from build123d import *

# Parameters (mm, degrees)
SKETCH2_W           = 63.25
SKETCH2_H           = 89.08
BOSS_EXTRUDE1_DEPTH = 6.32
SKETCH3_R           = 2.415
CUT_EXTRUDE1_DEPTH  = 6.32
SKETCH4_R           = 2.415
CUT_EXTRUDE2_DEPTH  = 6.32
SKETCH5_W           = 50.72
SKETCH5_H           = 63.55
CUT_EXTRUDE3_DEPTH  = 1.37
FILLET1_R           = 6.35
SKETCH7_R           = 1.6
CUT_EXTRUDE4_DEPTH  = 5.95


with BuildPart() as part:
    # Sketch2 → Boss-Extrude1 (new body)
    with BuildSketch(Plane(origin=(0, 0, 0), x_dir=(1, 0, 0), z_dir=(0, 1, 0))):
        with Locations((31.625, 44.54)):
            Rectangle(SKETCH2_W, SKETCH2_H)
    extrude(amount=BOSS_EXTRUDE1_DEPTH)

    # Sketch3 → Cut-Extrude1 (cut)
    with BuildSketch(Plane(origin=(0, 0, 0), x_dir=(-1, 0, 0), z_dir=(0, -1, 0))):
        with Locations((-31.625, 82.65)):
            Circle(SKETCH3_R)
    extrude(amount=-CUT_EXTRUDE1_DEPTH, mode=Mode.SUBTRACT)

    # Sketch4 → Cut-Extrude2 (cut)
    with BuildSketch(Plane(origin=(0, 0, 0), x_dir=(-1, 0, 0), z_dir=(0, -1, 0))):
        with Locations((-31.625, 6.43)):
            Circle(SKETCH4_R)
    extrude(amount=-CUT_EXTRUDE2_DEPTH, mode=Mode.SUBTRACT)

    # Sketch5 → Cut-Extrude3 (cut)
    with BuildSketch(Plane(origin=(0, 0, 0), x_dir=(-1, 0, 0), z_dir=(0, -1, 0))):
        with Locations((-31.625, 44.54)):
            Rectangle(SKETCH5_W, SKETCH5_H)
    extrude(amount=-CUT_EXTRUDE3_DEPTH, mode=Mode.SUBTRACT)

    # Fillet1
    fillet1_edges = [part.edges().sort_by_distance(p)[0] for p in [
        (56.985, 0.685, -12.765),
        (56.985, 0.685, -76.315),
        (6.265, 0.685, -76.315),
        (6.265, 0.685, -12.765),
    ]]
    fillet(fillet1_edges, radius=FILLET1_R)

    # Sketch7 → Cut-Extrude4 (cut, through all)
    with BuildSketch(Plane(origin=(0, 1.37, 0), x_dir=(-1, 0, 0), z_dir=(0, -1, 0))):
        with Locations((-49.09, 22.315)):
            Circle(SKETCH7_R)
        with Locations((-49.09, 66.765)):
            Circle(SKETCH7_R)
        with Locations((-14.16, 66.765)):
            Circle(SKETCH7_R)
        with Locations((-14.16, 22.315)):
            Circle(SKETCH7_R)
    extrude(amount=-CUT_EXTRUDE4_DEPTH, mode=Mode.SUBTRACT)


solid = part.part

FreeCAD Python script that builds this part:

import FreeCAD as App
import Part
import Sketcher
from FreeCAD import Vector
Q = App.Units.Quantity


def edges_at(feature, points):
    """Names of the edges that pass closest to the given points."""
    edges = feature.Shape.Edges
    near = lambda p: min(range(len(edges)), key=lambda i: edges[i].distToShape(Part.Vertex(*p))[0])
    return sorted({f"Edge{near(p) + 1}" for p in points})


def add_polygon(sketch, points):
    """Adds a closed chain of lines whose ends are joined by coincident constraints."""
    first, n = sketch.GeometryCount, len(points)
    for a, b in zip(points, points[1:] + points[:1]):
        sketch.addGeometry(Part.LineSegment(App.Vector(*a, 0), App.Vector(*b, 0)), False)
    for i in range(n):
        sketch.addConstraint(Sketcher.Constraint("Coincident", first + i, 2, first + (i + 1) % n, 1))

doc = App.newDocument("Part")
body = doc.addObject("PartDesign::Body", "Body")

sketch1 = body.newObject("Sketcher::SketchObject", "Sketch")
sketch1.AttachmentSupport = (doc.getObject("XZ_Plane"), [""])
sketch1.MapMode = "FlatFace"
add_polygon(sketch1, [(0, -89), (0, 0), (63, 0), (63, -89)])
sketch1.addConstraint(Sketcher.Constraint("Vertical", 0))
sketch1.addConstraint(Sketcher.Constraint("Horizontal", 1))
sketch1.addConstraint(Sketcher.Constraint("Vertical", 2))
sketch1.addConstraint(Sketcher.Constraint("Horizontal", 3))
sketch1.addConstraint(Sketcher.Constraint("Coincident", 0, 2, -1, 1))
sketch1.addConstraint(Sketcher.Constraint("DistanceX", 1, 1, 1, 2, Q("63.25 mm")))
sketch1.addConstraint(Sketcher.Constraint("DistanceY", 0, 1, 0, 2, Q("89.08 mm")))
pad1 = body.newObject("PartDesign::Pad", "Pad")
pad1.Profile = sketch1
pad1.Length = 6.32
pad1.Reversed = True

sketch2 = body.newObject("Sketcher::SketchObject", "Sketch001")
sketch2.AttachmentSupport = (doc.getObject("XZ_Plane"), [""])
sketch2.MapMode = "FlatFace"
sketch2.addGeometry(Part.Circle(Vector(31.6, -82.7, 0), Vector(0, 0, 1), 2.4), False)
sketch2.addConstraint(Sketcher.Constraint("Diameter", 0, Q("4.83 mm")))
sketch2.addConstraint(Sketcher.Constraint("DistanceY", 0, 3, -1, 1, Q("82.65 mm")))
sketch2.addConstraint(Sketcher.Constraint("DistanceX", -1, 1, 0, 3, Q("31.625 mm")))
pocket1 = body.newObject("PartDesign::Pocket", "Pocket")
pocket1.Profile = sketch2
pocket1.Length = 6.32

sketch3 = body.newObject("Sketcher::SketchObject", "Sketch002")
sketch3.AttachmentSupport = (doc.getObject("XZ_Plane"), [""])
sketch3.MapMode = "FlatFace"
sketch3.addGeometry(Part.Circle(Vector(31.6, -6.4, 0), Vector(0, 0, 1), 2.4), False)
sketch3.addConstraint(Sketcher.Constraint("Diameter", 0, Q("4.83 mm")))
sketch3.addConstraint(Sketcher.Constraint("DistanceY", 0, 3, -1, 1, Q("6.43 mm")))
sketch3.addConstraint(Sketcher.Constraint("DistanceX", -1, 1, 0, 3, Q("31.625 mm")))
pocket2 = body.newObject("PartDesign::Pocket", "Pocket001")
pocket2.Profile = sketch3
pocket2.Length = 6.32

sketch4 = body.newObject("Sketcher::SketchObject", "Sketch003")
sketch4.AttachmentSupport = (doc.getObject("XZ_Plane"), [""])
sketch4.MapMode = "FlatFace"
add_polygon(sketch4, [(57, -76), (57, -13), (6, -13), (6, -76)])
sketch4.addConstraint(Sketcher.Constraint("Vertical", 0))
sketch4.addConstraint(Sketcher.Constraint("Horizontal", 1))
sketch4.addConstraint(Sketcher.Constraint("Vertical", 2))
sketch4.addConstraint(Sketcher.Constraint("Horizontal", 3))
sketch4.addConstraint(Sketcher.Constraint("DistanceX", 1, 2, 1, 1, Q("50.72 mm")))
sketch4.addConstraint(Sketcher.Constraint("DistanceY", 0, 1, 0, 2, Q("63.55 mm")))
sketch4.addConstraint(Sketcher.Constraint("DistanceX", -1, 1, 0, 2, Q("56.985 mm")))
sketch4.addConstraint(Sketcher.Constraint("DistanceY", 0, 2, -1, 1, Q("12.765 mm")))
pocket3 = body.newObject("PartDesign::Pocket", "Pocket002")
pocket3.Profile = sketch4
pocket3.Length = 1.37
doc.recompute()

fillet = body.newObject("PartDesign::Fillet", "Fillet")
fillet.Base = (pocket3, edges_at(pocket3, [
    (56.985, 0.685, -12.765),
    (56.985, 0.685, -76.315),
    (6.265, 0.685, -76.315),
    (6.265, 0.685, -12.765),
]))
fillet.Radius = 6.35

sketch5 = body.newObject("Sketcher::SketchObject", "Sketch004")
sketch5.AttachmentSupport = (doc.getObject("XZ_Plane"), [""])
sketch5.MapMode = "FlatFace"
sketch5.AttachmentOffset = App.Placement(Vector(0, 0, -1.37), App.Rotation())
sketch5.addGeometry(Part.Circle(Vector(49.1, -22.3, 0), Vector(0, 0, 1), 1.6), False)
sketch5.addGeometry(Part.Circle(Vector(49.1, -66.8, 0), Vector(0, 0, 1), 1.6), False)
sketch5.addGeometry(Part.Circle(Vector(14.2, -66.8, 0), Vector(0, 0, 1), 1.6), False)
sketch5.addGeometry(Part.Circle(Vector(14.2, -22.3, 0), Vector(0, 0, 1), 1.6), False)
sketch5.addConstraint(Sketcher.Constraint("Equal", 0, 1))
sketch5.addConstraint(Sketcher.Constraint("Equal", 1, 2))
sketch5.addConstraint(Sketcher.Constraint("Equal", 2, 3))
sketch5.addConstraint(Sketcher.Constraint("Horizontal", 1, 3, 2, 3))
sketch5.addConstraint(Sketcher.Constraint("Horizontal", 0, 3, 3, 3))
sketch5.addConstraint(Sketcher.Constraint("Vertical", 0, 3, 1, 3))
sketch5.addConstraint(Sketcher.Constraint("Vertical", 2, 3, 3, 3))
sketch5.addConstraint(Sketcher.Constraint("Diameter", 0, Q("3.2 mm")))
sketch5.addConstraint(Sketcher.Constraint("DistanceX", -1, 1, 0, 3, Q("49.09 mm")))
sketch5.addConstraint(Sketcher.Constraint("DistanceX", -1, 1, 2, 3, Q("14.16 mm")))
sketch5.addConstraint(Sketcher.Constraint("DistanceY", 1, 3, 0, 3, Q("44.45 mm")))
sketch5.addConstraint(Sketcher.Constraint("DistanceY", 0, 3, -1, 1, Q("22.315 mm")))
pocket4 = body.newObject("PartDesign::Pocket", "Pocket003")
pocket4.Profile = sketch5
pocket4.Type = "ThroughAll"

doc.recompute()
